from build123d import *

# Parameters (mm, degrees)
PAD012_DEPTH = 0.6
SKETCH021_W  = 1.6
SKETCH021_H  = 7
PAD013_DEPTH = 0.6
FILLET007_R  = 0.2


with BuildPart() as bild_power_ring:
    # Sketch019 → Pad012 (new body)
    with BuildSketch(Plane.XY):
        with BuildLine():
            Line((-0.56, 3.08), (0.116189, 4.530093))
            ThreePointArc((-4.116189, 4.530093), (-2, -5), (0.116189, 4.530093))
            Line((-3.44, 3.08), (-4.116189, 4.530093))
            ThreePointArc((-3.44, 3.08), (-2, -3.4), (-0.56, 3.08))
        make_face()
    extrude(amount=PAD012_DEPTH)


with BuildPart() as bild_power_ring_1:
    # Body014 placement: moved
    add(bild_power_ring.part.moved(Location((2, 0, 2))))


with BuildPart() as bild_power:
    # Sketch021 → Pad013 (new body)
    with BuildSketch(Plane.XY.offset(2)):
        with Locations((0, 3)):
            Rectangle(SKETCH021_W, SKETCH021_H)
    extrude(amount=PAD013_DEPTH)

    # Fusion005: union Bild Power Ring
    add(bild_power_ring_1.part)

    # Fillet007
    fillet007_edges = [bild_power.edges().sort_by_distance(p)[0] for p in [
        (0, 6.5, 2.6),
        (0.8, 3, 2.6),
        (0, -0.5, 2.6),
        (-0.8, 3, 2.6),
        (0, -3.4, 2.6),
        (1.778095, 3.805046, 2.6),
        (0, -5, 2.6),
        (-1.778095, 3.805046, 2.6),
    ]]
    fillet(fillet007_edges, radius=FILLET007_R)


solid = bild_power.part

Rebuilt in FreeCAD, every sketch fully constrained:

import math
import FreeCAD as App
import Part
import Sketcher
Q = App.Units.Quantity


def edges_at(feature, points):
    """Names of the edges that pass closest to the given points."""
    edges = feature.Shape.Edges
    near = lambda p: min(range(len(edges)), key=lambda i: edges[i].distToShape(Part.Vertex(*p))[0])
    return sorted({f"Edge{near(p) + 1}" for p in points})


def add_polygon(sketch, points):
    """Adds a closed chain of lines whose ends are joined by coincident constraints."""
    first, n = sketch.GeometryCount, len(points)
    for a, b in zip(points, points[1:] + points[:1]):
        sketch.addGeometry(Part.LineSegment(App.Vector(*a, 0), App.Vector(*b, 0)), False)
    for i in range(n):
        sketch.addConstraint(Sketcher.Constraint("Coincident", first + i, 2, first + (i + 1) % n, 1))

doc = App.newDocument("Part")
body = doc.addObject("PartDesign::Body", "Body")

# Sketch on XY plane
sketch1 = body.newObject("Sketcher::SketchObject", "Sketch")
sketch1.AttachmentSupport = (doc.getObject("XY_Plane"), [""])
sketch1.MapMode = "FlatFace"
sketch1.addGeometry(Part.LineSegment(App.Vector(0.1, 4.5, 0), App.Vector(-0.6, 3.1, 0)), False)
sketch1.addGeometry(Part.ArcOfCircle(Part.Circle(App.Vector(-2, 0, 0), App.Vector(0, 0, 1), 3.4), math.radians(115), math.radians(425)), False)
sketch1.addGeometry(Part.LineSegment(App.Vector(-3.4, 3.1, 0), App.Vector(-4.1, 4.5, 0)), False)
sketch1.addGeometry(Part.ArcOfCircle(Part.Circle(App.Vector(-2, 0, 0), App.Vector(0, 0, 1), 5), math.radians(115), math.radians(425)), False)
sketch1.addConstraint(Sketcher.Constraint("Coincident", 0, 2, 1, 2))
sketch1.addConstraint(Sketcher.Constraint("Coincident", 1, 1, 2, 1))
sketch1.addConstraint(Sketcher.Constraint("Coincident", 2, 2, 3, 1))
sketch1.addConstraint(Sketcher.Constraint("Coincident", 3, 2, 0, 1))
sketch1.addConstraint(Sketcher.Constraint("Coincident", 3, 3, 1, 3))
sketch1.addConstraint(Sketcher.Constraint("PointOnObject", 1, 3, -1))
sketch1.addConstraint(Sketcher.Constraint("Horizontal", 0, 2, 1, 1))
sketch1.addConstraint(Sketcher.Constraint("Horizontal", 2, 2, 3, 2))
sketch1.addConstraint(Sketcher.Constraint("Radius", 3, Q("5 mm")))
sketch1.addConstraint(Sketcher.Constraint("Radius", 1, Q("3.4 mm")))
sketch1.addConstraint(Sketcher.Constraint("Angle", 0, Q("-114.999985 deg")))
sketch1.addConstraint(Sketcher.Constraint("DistanceX", 1, 3, -1, 1, Q("2 mm")))
sketch1.addConstraint(Sketcher.Constraint("DistanceX", 0, 2, -1, 1, Q("0.56 mm")))
pad1 = body.newObject("PartDesign::Pad", "Pad")
pad1.Profile = sketch1
pad1.Length = 0.6
body2 = doc.addObject("PartDesign::Body", "Body001")
doc.recompute()

body.Placement = App.Placement(App.Vector(2, 0, 2), App.Rotation(App.Vector(0, 0, 1), 0))
boolean = body2.newObject("PartDesign::Boolean", "Boolean")
boolean.Type = "Fuse"
boolean.addObjects([body])
body3 = doc.addObject("PartDesign::Body", "Body002")
body3.AllowCompound = True

# Sketch on XY plane
sketch2 = body3.newObject("Sketcher::SketchObject", "Sketch001")
sketch2.AttachmentSupport = (doc.getObject("XY_Plane002"), [""])
sketch2.MapMode = "FlatFace"
sketch2.AttachmentOffset = App.Placement(App.Vector(0, 0, 2), App.Rotation())
add_polygon(sketch2, [(-0.8, 6.5), (-0.8, -0.5), (0.8, -0.5), (0.8, 6.5)])  # lines 0-3
sketch2.addConstraint(Sketcher.Constraint("Vertical", 0))
sketch2.addConstraint(Sketcher.Constraint("Horizontal", 1))
sketch2.addConstraint(Sketcher.Constraint("Vertical", 2))
sketch2.addConstraint(Sketcher.Constraint("Horizontal", 3))
sketch2.addConstraint(Sketcher.Constraint("DistanceY", 0, 2, 0, 1, Q("7 mm")))
sketch2.addConstraint(Sketcher.Constraint("DistanceX", 1, 1, 1, 2, Q("1.6 mm")))
sketch2.addConstraint(Sketcher.Constraint("DistanceX", 0, 2, -1, 1, Q("0.8 mm")))
sketch2.addConstraint(Sketcher.Constraint("DistanceY", 0, 2, -1, 1, Q("0.5 mm")))
pad2 = body3.newObject("PartDesign::Pad", "Pad001")
pad2.Profile = sketch2
pad2.Length = 0.6
doc.recompute()

boolean2 = body3.newObject("PartDesign::Boolean", "Boolean001")
boolean2.Type = "Fuse"
boolean2.addObjects([body2])
doc.recompute()

fillet = body3.newObject("PartDesign::Fillet", "Fillet")
fillet.Base = (boolean2, edges_at(boolean2, [
    (0, 6.5, 2.6),
    (0.8, 3, 2.6),
    (0, -0.5, 2.6),
    (-0.8, 3, 2.6),
    (0, -3.4, 2.6),
    (1.778, 3.805, 2.6),
    (0, -5, 2.6),
    (-1.778, 3.805, 2.6),
]))
fillet.Radius = 0.2

doc.recompute()
